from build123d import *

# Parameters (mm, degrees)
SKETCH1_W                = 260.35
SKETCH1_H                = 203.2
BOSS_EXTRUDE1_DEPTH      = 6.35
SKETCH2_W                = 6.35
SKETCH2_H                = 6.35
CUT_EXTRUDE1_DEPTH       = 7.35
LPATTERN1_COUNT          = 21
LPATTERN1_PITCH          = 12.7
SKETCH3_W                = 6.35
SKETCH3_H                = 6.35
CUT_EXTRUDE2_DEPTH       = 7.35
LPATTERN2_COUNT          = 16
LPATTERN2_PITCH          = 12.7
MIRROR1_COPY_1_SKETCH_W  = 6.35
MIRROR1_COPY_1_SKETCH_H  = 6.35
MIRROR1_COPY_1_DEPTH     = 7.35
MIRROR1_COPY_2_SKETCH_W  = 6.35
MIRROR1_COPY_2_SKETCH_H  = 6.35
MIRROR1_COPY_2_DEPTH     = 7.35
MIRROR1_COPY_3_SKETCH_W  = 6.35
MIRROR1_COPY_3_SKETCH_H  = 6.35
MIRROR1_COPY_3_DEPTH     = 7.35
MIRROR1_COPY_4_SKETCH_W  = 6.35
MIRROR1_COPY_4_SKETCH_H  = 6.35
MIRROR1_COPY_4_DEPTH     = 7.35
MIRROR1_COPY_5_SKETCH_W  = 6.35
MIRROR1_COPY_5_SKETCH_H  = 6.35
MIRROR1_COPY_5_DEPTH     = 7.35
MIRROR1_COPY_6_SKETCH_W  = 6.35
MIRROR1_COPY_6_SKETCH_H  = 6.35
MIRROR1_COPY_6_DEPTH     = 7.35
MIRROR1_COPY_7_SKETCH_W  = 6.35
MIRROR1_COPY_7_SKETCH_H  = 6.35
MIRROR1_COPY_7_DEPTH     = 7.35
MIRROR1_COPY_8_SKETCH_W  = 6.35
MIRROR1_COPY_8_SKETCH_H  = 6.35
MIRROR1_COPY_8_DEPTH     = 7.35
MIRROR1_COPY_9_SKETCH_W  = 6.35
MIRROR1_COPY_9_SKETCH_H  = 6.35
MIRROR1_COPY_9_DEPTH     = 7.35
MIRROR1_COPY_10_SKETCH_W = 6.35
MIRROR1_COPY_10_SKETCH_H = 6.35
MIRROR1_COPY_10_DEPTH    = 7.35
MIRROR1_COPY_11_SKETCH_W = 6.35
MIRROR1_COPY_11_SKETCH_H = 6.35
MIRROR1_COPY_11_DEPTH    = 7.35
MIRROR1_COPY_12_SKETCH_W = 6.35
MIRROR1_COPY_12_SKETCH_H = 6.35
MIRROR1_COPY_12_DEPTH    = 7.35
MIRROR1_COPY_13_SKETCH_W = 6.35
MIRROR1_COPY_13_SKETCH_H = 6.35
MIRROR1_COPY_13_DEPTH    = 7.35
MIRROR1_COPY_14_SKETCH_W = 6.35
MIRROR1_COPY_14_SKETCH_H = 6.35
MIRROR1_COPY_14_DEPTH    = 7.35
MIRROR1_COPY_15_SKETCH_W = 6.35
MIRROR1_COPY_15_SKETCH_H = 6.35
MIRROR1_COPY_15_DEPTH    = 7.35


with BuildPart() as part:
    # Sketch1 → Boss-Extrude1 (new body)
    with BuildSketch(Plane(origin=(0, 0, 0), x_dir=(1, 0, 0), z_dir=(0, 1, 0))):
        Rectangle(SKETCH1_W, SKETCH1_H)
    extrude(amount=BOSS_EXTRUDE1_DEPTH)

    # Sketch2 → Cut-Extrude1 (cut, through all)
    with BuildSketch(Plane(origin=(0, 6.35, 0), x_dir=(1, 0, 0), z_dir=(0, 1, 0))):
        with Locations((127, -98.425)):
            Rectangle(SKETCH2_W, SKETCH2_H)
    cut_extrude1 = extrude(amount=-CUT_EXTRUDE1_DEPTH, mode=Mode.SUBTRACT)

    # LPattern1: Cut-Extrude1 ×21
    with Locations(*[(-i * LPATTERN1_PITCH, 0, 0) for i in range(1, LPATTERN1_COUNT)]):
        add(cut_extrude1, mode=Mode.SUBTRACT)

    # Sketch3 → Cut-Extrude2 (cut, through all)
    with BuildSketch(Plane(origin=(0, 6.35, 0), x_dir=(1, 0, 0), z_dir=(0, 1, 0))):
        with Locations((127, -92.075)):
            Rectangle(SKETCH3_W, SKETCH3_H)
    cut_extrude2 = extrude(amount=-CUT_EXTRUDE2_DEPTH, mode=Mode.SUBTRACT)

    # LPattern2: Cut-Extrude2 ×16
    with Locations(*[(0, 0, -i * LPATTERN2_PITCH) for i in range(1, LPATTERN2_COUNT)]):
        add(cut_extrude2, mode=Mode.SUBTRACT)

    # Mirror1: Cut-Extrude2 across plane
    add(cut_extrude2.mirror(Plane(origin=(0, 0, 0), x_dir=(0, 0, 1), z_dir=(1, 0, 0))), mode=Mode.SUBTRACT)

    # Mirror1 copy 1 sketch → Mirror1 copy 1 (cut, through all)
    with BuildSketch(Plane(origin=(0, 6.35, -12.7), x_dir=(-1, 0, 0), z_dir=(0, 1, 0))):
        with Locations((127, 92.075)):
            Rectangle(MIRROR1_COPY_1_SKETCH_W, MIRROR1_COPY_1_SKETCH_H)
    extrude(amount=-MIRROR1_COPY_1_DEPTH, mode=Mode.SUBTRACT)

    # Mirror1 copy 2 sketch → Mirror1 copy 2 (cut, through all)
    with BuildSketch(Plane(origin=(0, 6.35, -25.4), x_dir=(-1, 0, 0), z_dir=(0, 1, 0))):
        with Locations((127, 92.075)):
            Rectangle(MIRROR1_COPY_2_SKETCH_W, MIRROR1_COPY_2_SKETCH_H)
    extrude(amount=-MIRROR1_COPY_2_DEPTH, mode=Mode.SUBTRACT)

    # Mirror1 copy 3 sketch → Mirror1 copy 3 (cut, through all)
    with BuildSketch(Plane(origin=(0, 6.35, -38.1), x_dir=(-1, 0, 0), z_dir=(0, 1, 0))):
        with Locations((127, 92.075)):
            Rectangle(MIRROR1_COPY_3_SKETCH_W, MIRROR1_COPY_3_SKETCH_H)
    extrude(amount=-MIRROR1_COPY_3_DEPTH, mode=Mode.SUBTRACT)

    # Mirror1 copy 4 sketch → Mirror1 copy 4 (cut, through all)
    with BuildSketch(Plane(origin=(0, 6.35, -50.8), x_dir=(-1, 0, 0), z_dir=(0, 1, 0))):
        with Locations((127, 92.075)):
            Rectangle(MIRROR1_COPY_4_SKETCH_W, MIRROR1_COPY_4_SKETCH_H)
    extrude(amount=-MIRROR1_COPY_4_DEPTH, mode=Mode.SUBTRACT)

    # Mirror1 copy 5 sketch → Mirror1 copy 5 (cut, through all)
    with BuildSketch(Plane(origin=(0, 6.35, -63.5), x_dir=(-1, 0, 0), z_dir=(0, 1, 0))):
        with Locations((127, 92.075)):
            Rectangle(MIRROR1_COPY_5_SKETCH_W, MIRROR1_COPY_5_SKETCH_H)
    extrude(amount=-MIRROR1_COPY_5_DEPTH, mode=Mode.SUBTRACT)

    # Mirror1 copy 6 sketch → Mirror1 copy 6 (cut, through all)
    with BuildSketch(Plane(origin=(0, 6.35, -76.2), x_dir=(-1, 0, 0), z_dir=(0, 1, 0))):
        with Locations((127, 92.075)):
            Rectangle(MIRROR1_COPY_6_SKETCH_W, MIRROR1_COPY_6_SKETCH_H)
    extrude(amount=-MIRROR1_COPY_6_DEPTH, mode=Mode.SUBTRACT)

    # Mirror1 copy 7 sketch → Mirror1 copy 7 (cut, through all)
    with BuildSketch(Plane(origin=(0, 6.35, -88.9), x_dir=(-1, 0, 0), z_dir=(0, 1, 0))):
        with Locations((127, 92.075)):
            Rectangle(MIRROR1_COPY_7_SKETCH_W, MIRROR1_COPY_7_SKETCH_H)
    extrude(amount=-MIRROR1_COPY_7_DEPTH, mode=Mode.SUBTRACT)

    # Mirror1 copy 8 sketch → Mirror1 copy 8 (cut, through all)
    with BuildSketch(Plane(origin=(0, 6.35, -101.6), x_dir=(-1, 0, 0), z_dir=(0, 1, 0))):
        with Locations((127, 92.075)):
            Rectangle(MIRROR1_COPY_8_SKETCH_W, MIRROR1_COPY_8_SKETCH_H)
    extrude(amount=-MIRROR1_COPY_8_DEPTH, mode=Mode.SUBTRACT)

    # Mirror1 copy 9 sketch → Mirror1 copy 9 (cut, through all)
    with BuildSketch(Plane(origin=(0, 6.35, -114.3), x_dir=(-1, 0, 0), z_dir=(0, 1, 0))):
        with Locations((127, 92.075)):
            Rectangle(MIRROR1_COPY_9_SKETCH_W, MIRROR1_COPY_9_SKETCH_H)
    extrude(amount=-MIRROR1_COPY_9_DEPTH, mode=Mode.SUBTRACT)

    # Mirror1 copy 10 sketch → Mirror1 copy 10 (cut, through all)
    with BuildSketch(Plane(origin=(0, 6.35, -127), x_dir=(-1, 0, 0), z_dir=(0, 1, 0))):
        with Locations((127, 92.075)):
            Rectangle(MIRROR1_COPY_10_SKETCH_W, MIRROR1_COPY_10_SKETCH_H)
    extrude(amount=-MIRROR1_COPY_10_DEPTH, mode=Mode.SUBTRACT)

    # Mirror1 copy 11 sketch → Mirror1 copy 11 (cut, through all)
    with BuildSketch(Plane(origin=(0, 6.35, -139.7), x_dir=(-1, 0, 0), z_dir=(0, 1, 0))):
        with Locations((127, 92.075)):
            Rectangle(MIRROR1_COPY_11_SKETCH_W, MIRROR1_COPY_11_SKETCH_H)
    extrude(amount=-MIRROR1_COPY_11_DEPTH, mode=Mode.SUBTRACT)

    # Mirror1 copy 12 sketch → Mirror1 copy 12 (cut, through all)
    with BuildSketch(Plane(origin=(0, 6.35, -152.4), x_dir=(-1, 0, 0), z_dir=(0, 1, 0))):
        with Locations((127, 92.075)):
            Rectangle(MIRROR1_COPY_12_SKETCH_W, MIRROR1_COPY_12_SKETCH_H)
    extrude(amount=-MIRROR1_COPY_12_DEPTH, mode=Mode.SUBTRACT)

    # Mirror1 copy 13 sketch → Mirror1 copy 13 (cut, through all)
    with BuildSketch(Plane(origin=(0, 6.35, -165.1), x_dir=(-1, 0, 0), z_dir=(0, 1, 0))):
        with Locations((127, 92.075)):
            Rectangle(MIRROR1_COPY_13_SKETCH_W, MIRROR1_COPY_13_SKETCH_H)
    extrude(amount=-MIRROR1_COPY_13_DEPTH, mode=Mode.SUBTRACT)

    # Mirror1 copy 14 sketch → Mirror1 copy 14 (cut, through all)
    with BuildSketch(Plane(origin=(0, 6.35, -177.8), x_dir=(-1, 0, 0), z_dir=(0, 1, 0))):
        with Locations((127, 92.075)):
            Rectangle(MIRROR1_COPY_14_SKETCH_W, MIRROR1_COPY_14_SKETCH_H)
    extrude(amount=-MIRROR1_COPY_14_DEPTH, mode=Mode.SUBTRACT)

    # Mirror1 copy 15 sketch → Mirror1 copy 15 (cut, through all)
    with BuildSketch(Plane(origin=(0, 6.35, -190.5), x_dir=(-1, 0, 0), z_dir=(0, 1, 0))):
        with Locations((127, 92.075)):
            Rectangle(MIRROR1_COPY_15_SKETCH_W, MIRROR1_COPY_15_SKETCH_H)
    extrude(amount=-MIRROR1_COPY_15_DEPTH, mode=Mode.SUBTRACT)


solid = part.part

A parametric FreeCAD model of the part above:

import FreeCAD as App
import Part
import Sketcher

V = App.Vector
Q = App.Units.Quantity


def add_polygon(sketch, points):
    """Adds a closed chain of lines whose ends are joined by coincident constraints."""
    first, n = sketch.GeometryCount, len(points)
    for a, b in zip(points, points[1:] + points[:1]):
        sketch.addGeometry(Part.LineSegment(App.Vector(*a, 0), App.Vector(*b, 0)), False)
    for i in range(n):
        sketch.addConstraint(Sketcher.Constraint("Coincident", first + i, 2, first + (i + 1) % n, 1))

doc = App.newDocument("Part")
body = doc.addObject("PartDesign::Body", "Body")

sketch1 = body.newObject("Sketcher::SketchObject", "Sketch")
sketch1.AttachmentSupport = (doc.getObject("XZ_Plane"), [""])
sketch1.MapMode = "FlatFace"
add_polygon(sketch1, [(-130, -102), (-130, 102), (130, 102), (130, -102)])
sketch1.addConstraint(Sketcher.Constraint("Vertical", 0))
sketch1.addConstraint(Sketcher.Constraint("Horizontal", 1))
sketch1.addConstraint(Sketcher.Constraint("Vertical", 2))
sketch1.addConstraint(Sketcher.Constraint("Horizontal", 3))
sketch1.addConstraint(Sketcher.Constraint("Symmetric", 0, 2, 2, 2, -1, 1))
sketch1.addConstraint(Sketcher.Constraint("DistanceY", 0, 1, 0, 2, Q("8 in")))
sketch1.addConstraint(Sketcher.Constraint("DistanceX", 1, 1, 1, 2, Q("10.25 in")))
pad1 = body.newObject("PartDesign::Pad", "Pad")
pad1.Profile = sketch1
pad1.Length = Q("0.25 in")
pad1.Reversed = True

sketch2 = body.newObject("Sketcher::SketchObject", "Sketch001")
sketch2.AttachmentSupport = (doc.getObject("XZ_Plane"), [""])
sketch2.MapMode = "FlatFace"
sketch2.AttachmentOffset = App.Placement(V(0, 0, -0.25 * 25.4), App.Rotation())
add_polygon(sketch2, [(124, 95), (124, 102), (130, 102), (130, 95)])
sketch2.addConstraint(Sketcher.Constraint("Vertical", 0))
sketch2.addConstraint(Sketcher.Constraint("Horizontal", 1))
sketch2.addConstraint(Sketcher.Constraint("Vertical", 2))
sketch2.addConstraint(Sketcher.Constraint("Horizontal", 3))
sketch2.addConstraint(Sketcher.Constraint("Equal", 3, 0))
sketch2.addConstraint(Sketcher.Constraint("DistanceY", -1, 1, 0, 2, Q("4 in")))
sketch2.addConstraint(Sketcher.Constraint("DistanceX", 1, 1, 1, 2, Q("0.25 in")))
sketch2.addConstraint(Sketcher.Constraint("DistanceX", -1, 1, 0, 2, Q("4.875 in")))
pocket1 = body.newObject("PartDesign::Pocket", "Pocket")
pocket1.Profile = sketch2
pocket1.Type = "ThroughAll"
pocket1.Reversed = True
doc.recompute()

linearpattern = body.newObject("PartDesign::LinearPattern", "LinearPattern")
linearpattern.Originals = [pocket1]
linearpattern.Direction = (doc.getObject("X_Axis"), [""])
linearpattern.Mode = "offset"
linearpattern.Offset = Q("0.5 in")
linearpattern.Occurrences = 21
linearpattern.Reversed = True
body.Tip = linearpattern

sketch3 = body.newObject("Sketcher::SketchObject", "Sketch002")
sketch3.AttachmentSupport = (doc.getObject("XZ_Plane"), [""])
sketch3.MapMode = "FlatFace"
sketch3.AttachmentOffset = App.Placement(V(0, 0, -0.25 * 25.4), App.Rotation())
add_polygon(sketch3, [(124, 89), (124, 95), (130, 95), (130, 89)])
sketch3.addConstraint(Sketcher.Constraint("Vertical", 0))
sketch3.addConstraint(Sketcher.Constraint("Horizontal", 1))
sketch3.addConstraint(Sketcher.Constraint("Vertical", 2))
sketch3.addConstraint(Sketcher.Constraint("Horizontal", 3))
sketch3.addConstraint(Sketcher.Constraint("Equal", 3, 0))
sketch3.addConstraint(Sketcher.Constraint("DistanceX", 1, 1, 1, 2, Q("0.25 in")))
sketch3.addConstraint(Sketcher.Constraint("DistanceY", -1, 1, 2, 2, Q("3.5 in")))
sketch3.addConstraint(Sketcher.Constraint("DistanceX", -1, 1, 0, 2, Q("4.875 in")))
pocket2 = body.newObject("PartDesign::Pocket", "Pocket001")
pocket2.Profile = sketch3
pocket2.Type = "ThroughAll"
pocket2.Reversed = True
doc.recompute()

linearpattern2 = body.newObject("PartDesign::LinearPattern", "LinearPattern001")
linearpattern2.Originals = [pocket2]
linearpattern2.Direction = (doc.getObject("Z_Axis"), [""])
linearpattern2.Mode = "offset"
linearpattern2.Offset = Q("0.5 in")
linearpattern2.Occurrences = 16
linearpattern2.Reversed = True
body.Tip = linearpattern2
doc.recompute()

mirrored = body.newObject("PartDesign::Mirrored", "Mirrored")
mirrored.Originals = [pocket2]
mirrored.MirrorPlane = (doc.getObject("YZ_Plane"), [""])
body.Tip = mirrored

sketch4 = body.newObject("Sketcher::SketchObject", "Sketch003")
sketch4.AttachmentSupport = (doc.getObject("XZ_Plane"), [""])
sketch4.MapMode = "FlatFace"
sketch4.AttachmentOffset = App.Placement(V(0, 0, -0.25 * 25.4), App.Rotation())
add_polygon(sketch4, [(-124, 83), (-124, 76), (-130, 76), (-130, 83)])
sketch4.addConstraint(Sketcher.Constraint("Vertical", 0))
sketch4.addConstraint(Sketcher.Constraint("Horizontal", 1))
sketch4.addConstraint(Sketcher.Constraint("Vertical", 2))
sketch4.addConstraint(Sketcher.Constraint("Horizontal", 3))
sketch4.addConstraint(Sketcher.Constraint("Equal", 3, 0))
sketch4.addConstraint(Sketcher.Constraint("DistanceY", -1, 1, 0, 2, Q("3 in")))
sketch4.addConstraint(Sketcher.Constraint("DistanceX", 1, 2, 1, 1, Q("0.25 in")))
sketch4.addConstraint(Sketcher.Constraint("DistanceX", 0, 2, -1, 1, Q("4.875 in")))
pocket3 = body.newObject("PartDesign::Pocket", "Pocket002")
pocket3.Profile = sketch4
pocket3.Type = "ThroughAll"
pocket3.Reversed = True

sketch5 = body.newObject("Sketcher::SketchObject", "Sketch004")
sketch5.AttachmentSupport = (doc.getObject("XZ_Plane"), [""])
sketch5.MapMode = "FlatFace"
sketch5.AttachmentOffset = App.Placement(V(0, 0, -0.25 * 25.4), App.Rotation())
add_polygon(sketch5, [(-124, 70), (-124, 64), (-130, 64), (-130, 70)])
sketch5.addConstraint(Sketcher.Constraint("Vertical", 0))
sketch5.addConstraint(Sketcher.Constraint("Horizontal", 1))
sketch5.addConstraint(Sketcher.Constraint("Vertical", 2))
sketch5.addConstraint(Sketcher.Constraint("Horizontal", 3))
sketch5.addConstraint(Sketcher.Constraint("Equal", 3, 0))
sketch5.addConstraint(Sketcher.Constraint("DistanceX", 1, 2, 1, 1, Q("0.25 in")))
sketch5.addConstraint(Sketcher.Constraint("DistanceY", -1, 1, 0, 2, Q("2.5 in")))
sketch5.addConstraint(Sketcher.Constraint("DistanceX", 0, 2, -1, 1, Q("4.875 in")))
pocket4 = body.newObject("PartDesign::Pocket", "Pocket003")
pocket4.Profile = sketch5
pocket4.Type = "ThroughAll"
pocket4.Reversed = True

sketch6 = body.newObject("Sketcher::SketchObject", "Sketch005")
sketch6.AttachmentSupport = (doc.getObject("XZ_Plane"), [""])
sketch6.MapMode = "FlatFace"
sketch6.AttachmentOffset = App.Placement(V(0, 0, -0.25 * 25.4), App.Rotation())
add_polygon(sketch6, [(-124, 57), (-124, 51), (-130, 51), (-130, 57)])
sketch6.addConstraint(Sketcher.Constraint("Vertical", 0))
sketch6.addConstraint(Sketcher.Constraint("Horizontal", 1))
sketch6.addConstraint(Sketcher.Constraint("Vertical", 2))
sketch6.addConstraint(Sketcher.Constraint("Horizontal", 3))
sketch6.addConstraint(Sketcher.Constraint("Equal", 3, 0))
sketch6.addConstraint(Sketcher.Constraint("DistanceY", -1, 1, 0, 2, Q("2 in")))
sketch6.addConstraint(Sketcher.Constraint("DistanceX", 1, 2, 1, 1, Q("0.25 in")))
sketch6.addConstraint(Sketcher.Constraint("DistanceX", 0, 2, -1, 1, Q("4.875 in")))
pocket5 = body.newObject("PartDesign::Pocket", "Pocket004")
pocket5.Profile = sketch6
pocket5.Type = "ThroughAll"
pocket5.Reversed = True

sketch7 = body.newObject("Sketcher::SketchObject", "Sketch006")
sketch7.AttachmentSupport = (doc.getObject("XZ_Plane"), [""])
sketch7.MapMode = "FlatFace"
sketch7.AttachmentOffset = App.Placement(V(0, 0, -0.25 * 25.4), App.Rotation())
add_polygon(sketch7, [(-124, 44), (-124, 38), (-130, 38), (-130, 44)])
sketch7.addConstraint(Sketcher.Constraint("Vertical", 0))
sketch7.addConstraint(Sketcher.Constraint("Horizontal", 1))
sketch7.addConstraint(Sketcher.Constraint("Vertical", 2))
sketch7.addConstraint(Sketcher.Constraint("Horizontal", 3))
sketch7.addConstraint(Sketcher.Constraint("Equal", 3, 0))
sketch7.addConstraint(Sketcher.Constraint("DistanceX", 1, 2, 1, 1, Q("0.25 in")))
sketch7.addConstraint(Sketcher.Constraint("DistanceY", -1, 1, 0, 2, Q("1.5 in")))
sketch7.addConstraint(Sketcher.Constraint("DistanceX", 0, 2, -1, 1, Q("4.875 in")))
pocket6 = body.newObject("PartDesign::Pocket", "Pocket005")
pocket6.Profile = sketch7
pocket6.Type = "ThroughAll"
pocket6.Reversed = True

sketch8 = body.newObject("Sketcher::SketchObject", "Sketch007")
sketch8.AttachmentSupport = (doc.getObject("XZ_Plane"), [""])
sketch8.MapMode = "FlatFace"
sketch8.AttachmentOffset = App.Placement(V(0, 0, -0.25 * 25.4), App.Rotation())
add_polygon(sketch8, [(-124, 32), (-124, 25), (-130, 25), (-130, 32)])
sketch8.addConstraint(Sketcher.Constraint("Vertical", 0))
sketch8.addConstraint(Sketcher.Constraint("Horizontal", 1))
sketch8.addConstraint(Sketcher.Constraint("Vertical", 2))
sketch8.addConstraint(Sketcher.Constraint("Horizontal", 3))
sketch8.addConstraint(Sketcher.Constraint("Equal", 3, 0))
sketch8.addConstraint(Sketcher.Constraint("DistanceY", -1, 1, 0, 2, Q("1 in")))
sketch8.addConstraint(Sketcher.Constraint("DistanceX", 1, 2, 1, 1, Q("0.25 in")))
sketch8.addConstraint(Sketcher.Constraint("DistanceX", 0, 2, -1, 1, Q("4.875 in")))
pocket7 = body.newObject("PartDesign::Pocket", "Pocket006")
pocket7.Profile = sketch8
pocket7.Type = "ThroughAll"
pocket7.Reversed = True

sketch9 = body.newObject("Sketcher::SketchObject", "Sketch008")
sketch9.AttachmentSupport = (doc.getObject("XZ_Plane"), [""])
sketch9.MapMode = "FlatFace"
sketch9.AttachmentOffset = App.Placement(V(0, 0, -0.25 * 25.4), App.Rotation())
add_polygon(sketch9, [(-124, 19), (-124, 13), (-130, 13), (-130, 19)])
sketch9.addConstraint(Sketcher.Constraint("Vertical", 0))
sketch9.addConstraint(Sketcher.Constraint("Horizontal", 1))
sketch9.addConstraint(Sketcher.Constraint("Vertical", 2))
sketch9.addConstraint(Sketcher.Constraint("Horizontal", 3))
sketch9.addConstraint(Sketcher.Constraint("Equal", 3, 0))
sketch9.addConstraint(Sketcher.Constraint("DistanceX", 1, 2, 1, 1, Q("0.25 in")))
sketch9.addConstraint(Sketcher.Constraint("DistanceY", -1, 1, 0, 2, Q("0.5 in")))
sketch9.addConstraint(Sketcher.Constraint("DistanceX", 0, 2, -1, 1, Q("4.875 in")))
pocket8 = body.newObject("PartDesign::Pocket", "Pocket007")
pocket8.Profile = sketch9
pocket8.Type = "ThroughAll"
pocket8.Reversed = True

sketch10 = body.newObject("Sketcher::SketchObject", "Sketch009")
sketch10.AttachmentSupport = (doc.getObject("XZ_Plane"), [""])
sketch10.MapMode = "FlatFace"
sketch10.AttachmentOffset = App.Placement(V(0, 0, -0.25 * 25.4), App.Rotation())
add_polygon(sketch10, [(-124, 6), (-124, 0), (-130, 0), (-130, 6)])
sketch10.addConstraint(Sketcher.Constraint("Vertical", 0))
sketch10.addConstraint(Sketcher.Constraint("Horizontal", 1))
sketch10.addConstraint(Sketcher.Constraint("Vertical", 2))
sketch10.addConstraint(Sketcher.Constraint("Horizontal", 3))
sketch10.addConstraint(Sketcher.Constraint("PointOnObject", 0, 2, -1))
sketch10.addConstraint(Sketcher.Constraint("Equal", 3, 0))
sketch10.addConstraint(Sketcher.Constraint("DistanceX", 1, 2, 1, 1, Q("0.25 in")))
sketch10.addConstraint(Sketcher.Constraint("DistanceX", 0, 2, -1, 1, Q("4.875 in")))
pocket9 = body.newObject("PartDesign::Pocket", "Pocket008")
pocket9.Profile = sketch10
pocket9.Type = "ThroughAll"
pocket9.Reversed = True

sketch11 = body.newObject("Sketcher::SketchObject", "Sketch010")
sketch11.AttachmentSupport = (doc.getObject("XZ_Plane"), [""])
sketch11.MapMode = "FlatFace"
sketch11.AttachmentOffset = App.Placement(V(0, 0, -0.25 * 25.4), App.Rotation())
add_polygon(sketch11, [(-124, -6), (-124, -13), (-130, -13), (-130, -6)])
sketch11.addConstraint(Sketcher.Constraint("Vertical", 0))
sketch11.addConstraint(Sketcher.Constraint("Horizontal", 1))
sketch11.addConstraint(Sketcher.Constraint("Vertical", 2))
sketch11.addConstraint(Sketcher.Constraint("Horizontal", 3))
sketch11.addConstraint(Sketcher.Constraint("Equal", 3, 0))
sketch11.addConstraint(Sketcher.Constraint("DistanceX", 1, 2, 1, 1, Q("0.25 in")))
sketch11.addConstraint(Sketcher.Constraint("DistanceY", 0, 2, -1, 1, Q("0.5 in")))
sketch11.addConstraint(Sketcher.Constraint("DistanceX", 0, 2, -1, 1, Q("4.875 in")))
pocket10 = body.newObject("PartDesign::Pocket", "Pocket009")
pocket10.Profile = sketch11
pocket10.Type = "ThroughAll"
pocket10.Reversed = True

sketch12 = body.newObject("Sketcher::SketchObject", "Sketch011")
sketch12.AttachmentSupport = (doc.getObject("XZ_Plane"), [""])
sketch12.MapMode = "FlatFace"
sketch12.AttachmentOffset = App.Placement(V(0, 0, -0.25 * 25.4), App.Rotation())
add_polygon(sketch12, [(-124, -19), (-124, -25), (-130, -25), (-130, -19)])
sketch12.addConstraint(Sketcher.Constraint("Vertical", 0))
sketch12.addConstraint(Sketcher.Constraint("Horizontal", 1))
sketch12.addConstraint(Sketcher.Constraint("Vertical", 2))
sketch12.addConstraint(Sketcher.Constraint("Horizontal", 3))
sketch12.addConstraint(Sketcher.Constraint("Equal", 3, 0))
sketch12.addConstraint(Sketcher.Constraint("DistanceY", 0, 2, -1, 1, Q("1 in")))
sketch12.addConstraint(Sketcher.Constraint("DistanceX", 1, 2, 1, 1, Q("0.25 in")))
sketch12.addConstraint(Sketcher.Constraint("DistanceX", 0, 2, -1, 1, Q("4.875 in")))
pocket11 = body.newObject("PartDesign::Pocket", "Pocket010")
pocket11.Profile = sketch12
pocket11.Type = "ThroughAll"
pocket11.Reversed = True

sketch13 = body.newObject("Sketcher::SketchObject", "Sketch012")
sketch13.AttachmentSupport = (doc.getObject("XZ_Plane"), [""])
sketch13.MapMode = "FlatFace"
sketch13.AttachmentOffset = App.Placement(V(0, 0, -0.25 * 25.4), App.Rotation())
add_polygon(sketch13, [(-124, -32), (-124, -38), (-130, -38), (-130, -32)])
sketch13.addConstraint(Sketcher.Constraint("Vertical", 0))
sketch13.addConstraint(Sketcher.Constraint("Horizontal", 1))
sketch13.addConstraint(Sketcher.Constraint("Vertical", 2))
sketch13.addConstraint(Sketcher.Constraint("Horizontal", 3))
sketch13.addConstraint(Sketcher.Constraint("Equal", 3, 0))
sketch13.addConstraint(Sketcher.Constraint("DistanceX", 1, 2, 1, 1, Q("0.25 in")))
sketch13.addConstraint(Sketcher.Constraint("DistanceY", 0, 2, -1, 1, Q("1.5 in")))
sketch13.addConstraint(Sketcher.Constraint("DistanceX", 0, 2, -1, 1, Q("4.875 in")))
pocket12 = body.newObject("PartDesign::Pocket", "Pocket011")
pocket12.Profile = sketch13
pocket12.Type = "ThroughAll"
pocket12.Reversed = True

sketch14 = body.newObject("Sketcher::SketchObject", "Sketch013")
sketch14.AttachmentSupport = (doc.getObject("XZ_Plane"), [""])
sketch14.MapMode = "FlatFace"
sketch14.AttachmentOffset = App.Placement(V(0, 0, -0.25 * 25.4), App.Rotation())
add_polygon(sketch14, [(-124, -44), (-124, -51), (-130, -51), (-130, -44)])
sketch14.addConstraint(Sketcher.Constraint("Vertical", 0))
sketch14.addConstraint(Sketcher.Constraint("Horizontal", 1))
sketch14.addConstraint(Sketcher.Constraint("Vertical", 2))
sketch14.addConstraint(Sketcher.Constraint("Horizontal", 3))
sketch14.addConstraint(Sketcher.Constraint("Equal", 3, 0))
sketch14.addConstraint(Sketcher.Constraint("DistanceY", 0, 2, -1, 1, Q("2 in")))
sketch14.addConstraint(Sketcher.Constraint("DistanceX", 1, 2, 1, 1, Q("0.25 in")))
sketch14.addConstraint(Sketcher.Constraint("DistanceX", 0, 2, -1, 1, Q("4.875 in")))
pocket13 = body.newObject("PartDesign::Pocket", "Pocket012")
pocket13.Profile = sketch14
pocket13.Type = "ThroughAll"
pocket13.Reversed = True

sketch15 = body.newObject("Sketcher::SketchObject", "Sketch014")
sketch15.AttachmentSupport = (doc.getObject("XZ_Plane"), [""])
sketch15.MapMode = "FlatFace"
sketch15.AttachmentOffset = App.Placement(V(0, 0, -0.25 * 25.4), App.Rotation())
add_polygon(sketch15, [(-124, -57), (-124, -64), (-130, -64), (-130, -57)])
sketch15.addConstraint(Sketcher.Constraint("Vertical", 0))
sketch15.addConstraint(Sketcher.Constraint("Horizontal", 1))
sketch15.addConstraint(Sketcher.Constraint("Vertical", 2))
sketch15.addConstraint(Sketcher.Constraint("Horizontal", 3))
sketch15.addConstraint(Sketcher.Constraint("Equal", 3, 0))
sketch15.addConstraint(Sketcher.Constraint("DistanceX", 1, 2, 1, 1, Q("0.25 in")))
sketch15.addConstraint(Sketcher.Constraint("DistanceY", 0, 2, -1, 1, Q("2.5 in")))
sketch15.addConstraint(Sketcher.Constraint("DistanceX", 0, 2, -1, 1, Q("4.875 in")))
pocket14 = body.newObject("PartDesign::Pocket", "Pocket013")
pocket14.Profile = sketch15
pocket14.Type = "ThroughAll"
pocket14.Reversed = True

sketch16 = body.newObject("Sketcher::SketchObject", "Sketch015")
sketch16.AttachmentSupport = (doc.getObject("XZ_Plane"), [""])
sketch16.MapMode = "FlatFace"
sketch16.AttachmentOffset = App.Placement(V(0, 0, -0.25 * 25.4), App.Rotation())
add_polygon(sketch16, [(-124, -70), (-124, -76), (-130, -76), (-130, -70)])
sketch16.addConstraint(Sketcher.Constraint("Vertical", 0))
sketch16.addConstraint(Sketcher.Constraint("Horizontal", 1))
sketch16.addConstraint(Sketcher.Constraint("Vertical", 2))
sketch16.addConstraint(Sketcher.Constraint("Horizontal", 3))
sketch16.addConstraint(Sketcher.Constraint("Equal", 3, 0))
sketch16.addConstraint(Sketcher.Constraint("DistanceY", 0, 2, -1, 1, Q("3 in")))
sketch16.addConstraint(Sketcher.Constraint("DistanceX", 1, 2, 1, 1, Q("0.25 in")))
sketch16.addConstraint(Sketcher.Constraint("DistanceX", 0, 2, -1, 1, Q("4.875 in")))
pocket15 = body.newObject("PartDesign::Pocket", "Pocket014")
pocket15.Profile = sketch16
pocket15.Type = "ThroughAll"
pocket15.Reversed = True

sketch17 = body.newObject("Sketcher::SketchObject", "Sketch016")
sketch17.AttachmentSupport = (doc.getObject("XZ_Plane"), [""])
sketch17.MapMode = "FlatFace"
sketch17.AttachmentOffset = App.Placement(V(0, 0, -0.25 * 25.4), App.Rotation())
add_polygon(sketch17, [(-124, -83), (-124, -89), (-130, -89), (-130, -83)])
sketch17.addConstraint(Sketcher.Constraint("Vertical", 0))
sketch17.addConstraint(Sketcher.Constraint("Horizontal", 1))
sketch17.addConstraint(Sketcher.Constraint("Vertical", 2))
sketch17.addConstraint(Sketcher.Constraint("Horizontal", 3))
sketch17.addConstraint(Sketcher.Constraint("Equal", 3, 0))
sketch17.addConstraint(Sketcher.Constraint("DistanceX", 1, 2, 1, 1, Q("0.25 in")))
sketch17.addConstraint(Sketcher.Constraint("DistanceY", 0, 2, -1, 1, Q("3.5 in")))
sketch17.addConstraint(Sketcher.Constraint("DistanceX", 0, 2, -1, 1, Q("4.875 in")))
pocket16 = body.newObject("PartDesign::Pocket", "Pocket015")
pocket16.Profile = sketch17
pocket16.Type = "ThroughAll"
pocket16.Reversed = True

sketch18 = body.newObject("Sketcher::SketchObject", "Sketch017")
sketch18.AttachmentSupport = (doc.getObject("XZ_Plane"), [""])
sketch18.MapMode = "FlatFace"
sketch18.AttachmentOffset = App.Placement(V(0, 0, -0.25 * 25.4), App.Rotation())
add_polygon(sketch18, [(-124, -95), (-124, -102), (-130, -102), (-130, -95)])
sketch18.addConstraint(Sketcher.Constraint("Vertical", 0))
sketch18.addConstraint(Sketcher.Constraint("Horizontal", 1))
sketch18.addConstraint(Sketcher.Constraint("Vertical", 2))
sketch18.addConstraint(Sketcher.Constraint("Horizontal", 3))
sketch18.addConstraint(Sketcher.Constraint("Equal", 3, 0))
sketch18.addConstraint(Sketcher.Constraint("DistanceY", 0, 2, -1, 1, Q("4 in")))
sketch18.addConstraint(Sketcher.Constraint("DistanceX", 1, 2, 1, 1, Q("0.25 in")))
sketch18.addConstraint(Sketcher.Constraint("DistanceX", 0, 2, -1, 1, Q("4.875 in")))
pocket17 = body.newObject("PartDesign::Pocket", "Pocket016")
pocket17.Profile = sketch18
pocket17.Type = "ThroughAll"
pocket17.Reversed = True

doc.recompute()
